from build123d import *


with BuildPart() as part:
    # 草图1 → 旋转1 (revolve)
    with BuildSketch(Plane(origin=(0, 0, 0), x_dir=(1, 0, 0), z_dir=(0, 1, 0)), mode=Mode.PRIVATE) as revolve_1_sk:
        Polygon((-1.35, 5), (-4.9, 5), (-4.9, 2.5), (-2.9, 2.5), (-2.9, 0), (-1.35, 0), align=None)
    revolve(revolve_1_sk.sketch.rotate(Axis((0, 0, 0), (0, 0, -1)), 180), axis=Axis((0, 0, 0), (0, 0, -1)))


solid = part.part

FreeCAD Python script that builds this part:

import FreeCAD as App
import Part
import Sketcher


def add_polygon(sketch, points):
    """Adds a closed chain of lines whose ends are joined by coincident constraints."""
    first, n = sketch.GeometryCount, len(points)
    for a, b in zip(points, points[1:] + points[:1]):
        sketch.addGeometry(Part.LineSegment(App.Vector(*a, 0), App.Vector(*b, 0)), False)
    for i in range(n):
        sketch.addConstraint(Sketcher.Constraint("Coincident", first + i, 2, first + (i + 1) % n, 1))

doc = App.newDocument("Part")
body = doc.addObject("PartDesign::Body", "Body")

# Sketch on XZ plane
sketch1 = doc.addObject("Sketcher::SketchObject", "Sketch")
body.addObject(sketch1)
sketch1.AttachmentSupport = (doc.XZ_Plane, [""])
sketch1.MapMode = "FlatFace"
add_polygon(sketch1, [(-1.4, -5), (-4.9, -5), (-4.9, -2.5), (-2.9, -2.5), (-2.9, 0), (-1.4, 0)])  # lines 0-5
sketch1.addConstraint([
    Sketcher.Constraint("Horizontal", 0),
    Sketcher.Constraint("Vertical", 1),
    Sketcher.Constraint("Horizontal", 2),
    Sketcher.Constraint("Vertical", 3),
    Sketcher.Constraint("Horizontal", 4),
    Sketcher.Constraint("Vertical", 5),
    Sketcher.Constraint("PointOnObject", 3, 2, -1),
    Sketcher.Constraint("Equal", 1, 3),
    Sketcher.Constraint("DistanceX", 2, 1, 2, 2, 2.0),
    Sketcher.Constraint("DistanceY", 5, 2, 5, 1, 5.0),
    Sketcher.Constraint("DistanceX", 0, 2, 0, 1, 3.55),
    Sketcher.Constraint("DistanceX", 0, 2, -1, 1, 4.9),
])
revolution = doc.addObject("PartDesign::Revolution", "Revolution")
body.addObject(revolution)
revolution.Profile = sketch1
revolution.ReferenceAxis = (sketch1, ["V_Axis"])
revolution.Angle = 360

doc.recompute()
